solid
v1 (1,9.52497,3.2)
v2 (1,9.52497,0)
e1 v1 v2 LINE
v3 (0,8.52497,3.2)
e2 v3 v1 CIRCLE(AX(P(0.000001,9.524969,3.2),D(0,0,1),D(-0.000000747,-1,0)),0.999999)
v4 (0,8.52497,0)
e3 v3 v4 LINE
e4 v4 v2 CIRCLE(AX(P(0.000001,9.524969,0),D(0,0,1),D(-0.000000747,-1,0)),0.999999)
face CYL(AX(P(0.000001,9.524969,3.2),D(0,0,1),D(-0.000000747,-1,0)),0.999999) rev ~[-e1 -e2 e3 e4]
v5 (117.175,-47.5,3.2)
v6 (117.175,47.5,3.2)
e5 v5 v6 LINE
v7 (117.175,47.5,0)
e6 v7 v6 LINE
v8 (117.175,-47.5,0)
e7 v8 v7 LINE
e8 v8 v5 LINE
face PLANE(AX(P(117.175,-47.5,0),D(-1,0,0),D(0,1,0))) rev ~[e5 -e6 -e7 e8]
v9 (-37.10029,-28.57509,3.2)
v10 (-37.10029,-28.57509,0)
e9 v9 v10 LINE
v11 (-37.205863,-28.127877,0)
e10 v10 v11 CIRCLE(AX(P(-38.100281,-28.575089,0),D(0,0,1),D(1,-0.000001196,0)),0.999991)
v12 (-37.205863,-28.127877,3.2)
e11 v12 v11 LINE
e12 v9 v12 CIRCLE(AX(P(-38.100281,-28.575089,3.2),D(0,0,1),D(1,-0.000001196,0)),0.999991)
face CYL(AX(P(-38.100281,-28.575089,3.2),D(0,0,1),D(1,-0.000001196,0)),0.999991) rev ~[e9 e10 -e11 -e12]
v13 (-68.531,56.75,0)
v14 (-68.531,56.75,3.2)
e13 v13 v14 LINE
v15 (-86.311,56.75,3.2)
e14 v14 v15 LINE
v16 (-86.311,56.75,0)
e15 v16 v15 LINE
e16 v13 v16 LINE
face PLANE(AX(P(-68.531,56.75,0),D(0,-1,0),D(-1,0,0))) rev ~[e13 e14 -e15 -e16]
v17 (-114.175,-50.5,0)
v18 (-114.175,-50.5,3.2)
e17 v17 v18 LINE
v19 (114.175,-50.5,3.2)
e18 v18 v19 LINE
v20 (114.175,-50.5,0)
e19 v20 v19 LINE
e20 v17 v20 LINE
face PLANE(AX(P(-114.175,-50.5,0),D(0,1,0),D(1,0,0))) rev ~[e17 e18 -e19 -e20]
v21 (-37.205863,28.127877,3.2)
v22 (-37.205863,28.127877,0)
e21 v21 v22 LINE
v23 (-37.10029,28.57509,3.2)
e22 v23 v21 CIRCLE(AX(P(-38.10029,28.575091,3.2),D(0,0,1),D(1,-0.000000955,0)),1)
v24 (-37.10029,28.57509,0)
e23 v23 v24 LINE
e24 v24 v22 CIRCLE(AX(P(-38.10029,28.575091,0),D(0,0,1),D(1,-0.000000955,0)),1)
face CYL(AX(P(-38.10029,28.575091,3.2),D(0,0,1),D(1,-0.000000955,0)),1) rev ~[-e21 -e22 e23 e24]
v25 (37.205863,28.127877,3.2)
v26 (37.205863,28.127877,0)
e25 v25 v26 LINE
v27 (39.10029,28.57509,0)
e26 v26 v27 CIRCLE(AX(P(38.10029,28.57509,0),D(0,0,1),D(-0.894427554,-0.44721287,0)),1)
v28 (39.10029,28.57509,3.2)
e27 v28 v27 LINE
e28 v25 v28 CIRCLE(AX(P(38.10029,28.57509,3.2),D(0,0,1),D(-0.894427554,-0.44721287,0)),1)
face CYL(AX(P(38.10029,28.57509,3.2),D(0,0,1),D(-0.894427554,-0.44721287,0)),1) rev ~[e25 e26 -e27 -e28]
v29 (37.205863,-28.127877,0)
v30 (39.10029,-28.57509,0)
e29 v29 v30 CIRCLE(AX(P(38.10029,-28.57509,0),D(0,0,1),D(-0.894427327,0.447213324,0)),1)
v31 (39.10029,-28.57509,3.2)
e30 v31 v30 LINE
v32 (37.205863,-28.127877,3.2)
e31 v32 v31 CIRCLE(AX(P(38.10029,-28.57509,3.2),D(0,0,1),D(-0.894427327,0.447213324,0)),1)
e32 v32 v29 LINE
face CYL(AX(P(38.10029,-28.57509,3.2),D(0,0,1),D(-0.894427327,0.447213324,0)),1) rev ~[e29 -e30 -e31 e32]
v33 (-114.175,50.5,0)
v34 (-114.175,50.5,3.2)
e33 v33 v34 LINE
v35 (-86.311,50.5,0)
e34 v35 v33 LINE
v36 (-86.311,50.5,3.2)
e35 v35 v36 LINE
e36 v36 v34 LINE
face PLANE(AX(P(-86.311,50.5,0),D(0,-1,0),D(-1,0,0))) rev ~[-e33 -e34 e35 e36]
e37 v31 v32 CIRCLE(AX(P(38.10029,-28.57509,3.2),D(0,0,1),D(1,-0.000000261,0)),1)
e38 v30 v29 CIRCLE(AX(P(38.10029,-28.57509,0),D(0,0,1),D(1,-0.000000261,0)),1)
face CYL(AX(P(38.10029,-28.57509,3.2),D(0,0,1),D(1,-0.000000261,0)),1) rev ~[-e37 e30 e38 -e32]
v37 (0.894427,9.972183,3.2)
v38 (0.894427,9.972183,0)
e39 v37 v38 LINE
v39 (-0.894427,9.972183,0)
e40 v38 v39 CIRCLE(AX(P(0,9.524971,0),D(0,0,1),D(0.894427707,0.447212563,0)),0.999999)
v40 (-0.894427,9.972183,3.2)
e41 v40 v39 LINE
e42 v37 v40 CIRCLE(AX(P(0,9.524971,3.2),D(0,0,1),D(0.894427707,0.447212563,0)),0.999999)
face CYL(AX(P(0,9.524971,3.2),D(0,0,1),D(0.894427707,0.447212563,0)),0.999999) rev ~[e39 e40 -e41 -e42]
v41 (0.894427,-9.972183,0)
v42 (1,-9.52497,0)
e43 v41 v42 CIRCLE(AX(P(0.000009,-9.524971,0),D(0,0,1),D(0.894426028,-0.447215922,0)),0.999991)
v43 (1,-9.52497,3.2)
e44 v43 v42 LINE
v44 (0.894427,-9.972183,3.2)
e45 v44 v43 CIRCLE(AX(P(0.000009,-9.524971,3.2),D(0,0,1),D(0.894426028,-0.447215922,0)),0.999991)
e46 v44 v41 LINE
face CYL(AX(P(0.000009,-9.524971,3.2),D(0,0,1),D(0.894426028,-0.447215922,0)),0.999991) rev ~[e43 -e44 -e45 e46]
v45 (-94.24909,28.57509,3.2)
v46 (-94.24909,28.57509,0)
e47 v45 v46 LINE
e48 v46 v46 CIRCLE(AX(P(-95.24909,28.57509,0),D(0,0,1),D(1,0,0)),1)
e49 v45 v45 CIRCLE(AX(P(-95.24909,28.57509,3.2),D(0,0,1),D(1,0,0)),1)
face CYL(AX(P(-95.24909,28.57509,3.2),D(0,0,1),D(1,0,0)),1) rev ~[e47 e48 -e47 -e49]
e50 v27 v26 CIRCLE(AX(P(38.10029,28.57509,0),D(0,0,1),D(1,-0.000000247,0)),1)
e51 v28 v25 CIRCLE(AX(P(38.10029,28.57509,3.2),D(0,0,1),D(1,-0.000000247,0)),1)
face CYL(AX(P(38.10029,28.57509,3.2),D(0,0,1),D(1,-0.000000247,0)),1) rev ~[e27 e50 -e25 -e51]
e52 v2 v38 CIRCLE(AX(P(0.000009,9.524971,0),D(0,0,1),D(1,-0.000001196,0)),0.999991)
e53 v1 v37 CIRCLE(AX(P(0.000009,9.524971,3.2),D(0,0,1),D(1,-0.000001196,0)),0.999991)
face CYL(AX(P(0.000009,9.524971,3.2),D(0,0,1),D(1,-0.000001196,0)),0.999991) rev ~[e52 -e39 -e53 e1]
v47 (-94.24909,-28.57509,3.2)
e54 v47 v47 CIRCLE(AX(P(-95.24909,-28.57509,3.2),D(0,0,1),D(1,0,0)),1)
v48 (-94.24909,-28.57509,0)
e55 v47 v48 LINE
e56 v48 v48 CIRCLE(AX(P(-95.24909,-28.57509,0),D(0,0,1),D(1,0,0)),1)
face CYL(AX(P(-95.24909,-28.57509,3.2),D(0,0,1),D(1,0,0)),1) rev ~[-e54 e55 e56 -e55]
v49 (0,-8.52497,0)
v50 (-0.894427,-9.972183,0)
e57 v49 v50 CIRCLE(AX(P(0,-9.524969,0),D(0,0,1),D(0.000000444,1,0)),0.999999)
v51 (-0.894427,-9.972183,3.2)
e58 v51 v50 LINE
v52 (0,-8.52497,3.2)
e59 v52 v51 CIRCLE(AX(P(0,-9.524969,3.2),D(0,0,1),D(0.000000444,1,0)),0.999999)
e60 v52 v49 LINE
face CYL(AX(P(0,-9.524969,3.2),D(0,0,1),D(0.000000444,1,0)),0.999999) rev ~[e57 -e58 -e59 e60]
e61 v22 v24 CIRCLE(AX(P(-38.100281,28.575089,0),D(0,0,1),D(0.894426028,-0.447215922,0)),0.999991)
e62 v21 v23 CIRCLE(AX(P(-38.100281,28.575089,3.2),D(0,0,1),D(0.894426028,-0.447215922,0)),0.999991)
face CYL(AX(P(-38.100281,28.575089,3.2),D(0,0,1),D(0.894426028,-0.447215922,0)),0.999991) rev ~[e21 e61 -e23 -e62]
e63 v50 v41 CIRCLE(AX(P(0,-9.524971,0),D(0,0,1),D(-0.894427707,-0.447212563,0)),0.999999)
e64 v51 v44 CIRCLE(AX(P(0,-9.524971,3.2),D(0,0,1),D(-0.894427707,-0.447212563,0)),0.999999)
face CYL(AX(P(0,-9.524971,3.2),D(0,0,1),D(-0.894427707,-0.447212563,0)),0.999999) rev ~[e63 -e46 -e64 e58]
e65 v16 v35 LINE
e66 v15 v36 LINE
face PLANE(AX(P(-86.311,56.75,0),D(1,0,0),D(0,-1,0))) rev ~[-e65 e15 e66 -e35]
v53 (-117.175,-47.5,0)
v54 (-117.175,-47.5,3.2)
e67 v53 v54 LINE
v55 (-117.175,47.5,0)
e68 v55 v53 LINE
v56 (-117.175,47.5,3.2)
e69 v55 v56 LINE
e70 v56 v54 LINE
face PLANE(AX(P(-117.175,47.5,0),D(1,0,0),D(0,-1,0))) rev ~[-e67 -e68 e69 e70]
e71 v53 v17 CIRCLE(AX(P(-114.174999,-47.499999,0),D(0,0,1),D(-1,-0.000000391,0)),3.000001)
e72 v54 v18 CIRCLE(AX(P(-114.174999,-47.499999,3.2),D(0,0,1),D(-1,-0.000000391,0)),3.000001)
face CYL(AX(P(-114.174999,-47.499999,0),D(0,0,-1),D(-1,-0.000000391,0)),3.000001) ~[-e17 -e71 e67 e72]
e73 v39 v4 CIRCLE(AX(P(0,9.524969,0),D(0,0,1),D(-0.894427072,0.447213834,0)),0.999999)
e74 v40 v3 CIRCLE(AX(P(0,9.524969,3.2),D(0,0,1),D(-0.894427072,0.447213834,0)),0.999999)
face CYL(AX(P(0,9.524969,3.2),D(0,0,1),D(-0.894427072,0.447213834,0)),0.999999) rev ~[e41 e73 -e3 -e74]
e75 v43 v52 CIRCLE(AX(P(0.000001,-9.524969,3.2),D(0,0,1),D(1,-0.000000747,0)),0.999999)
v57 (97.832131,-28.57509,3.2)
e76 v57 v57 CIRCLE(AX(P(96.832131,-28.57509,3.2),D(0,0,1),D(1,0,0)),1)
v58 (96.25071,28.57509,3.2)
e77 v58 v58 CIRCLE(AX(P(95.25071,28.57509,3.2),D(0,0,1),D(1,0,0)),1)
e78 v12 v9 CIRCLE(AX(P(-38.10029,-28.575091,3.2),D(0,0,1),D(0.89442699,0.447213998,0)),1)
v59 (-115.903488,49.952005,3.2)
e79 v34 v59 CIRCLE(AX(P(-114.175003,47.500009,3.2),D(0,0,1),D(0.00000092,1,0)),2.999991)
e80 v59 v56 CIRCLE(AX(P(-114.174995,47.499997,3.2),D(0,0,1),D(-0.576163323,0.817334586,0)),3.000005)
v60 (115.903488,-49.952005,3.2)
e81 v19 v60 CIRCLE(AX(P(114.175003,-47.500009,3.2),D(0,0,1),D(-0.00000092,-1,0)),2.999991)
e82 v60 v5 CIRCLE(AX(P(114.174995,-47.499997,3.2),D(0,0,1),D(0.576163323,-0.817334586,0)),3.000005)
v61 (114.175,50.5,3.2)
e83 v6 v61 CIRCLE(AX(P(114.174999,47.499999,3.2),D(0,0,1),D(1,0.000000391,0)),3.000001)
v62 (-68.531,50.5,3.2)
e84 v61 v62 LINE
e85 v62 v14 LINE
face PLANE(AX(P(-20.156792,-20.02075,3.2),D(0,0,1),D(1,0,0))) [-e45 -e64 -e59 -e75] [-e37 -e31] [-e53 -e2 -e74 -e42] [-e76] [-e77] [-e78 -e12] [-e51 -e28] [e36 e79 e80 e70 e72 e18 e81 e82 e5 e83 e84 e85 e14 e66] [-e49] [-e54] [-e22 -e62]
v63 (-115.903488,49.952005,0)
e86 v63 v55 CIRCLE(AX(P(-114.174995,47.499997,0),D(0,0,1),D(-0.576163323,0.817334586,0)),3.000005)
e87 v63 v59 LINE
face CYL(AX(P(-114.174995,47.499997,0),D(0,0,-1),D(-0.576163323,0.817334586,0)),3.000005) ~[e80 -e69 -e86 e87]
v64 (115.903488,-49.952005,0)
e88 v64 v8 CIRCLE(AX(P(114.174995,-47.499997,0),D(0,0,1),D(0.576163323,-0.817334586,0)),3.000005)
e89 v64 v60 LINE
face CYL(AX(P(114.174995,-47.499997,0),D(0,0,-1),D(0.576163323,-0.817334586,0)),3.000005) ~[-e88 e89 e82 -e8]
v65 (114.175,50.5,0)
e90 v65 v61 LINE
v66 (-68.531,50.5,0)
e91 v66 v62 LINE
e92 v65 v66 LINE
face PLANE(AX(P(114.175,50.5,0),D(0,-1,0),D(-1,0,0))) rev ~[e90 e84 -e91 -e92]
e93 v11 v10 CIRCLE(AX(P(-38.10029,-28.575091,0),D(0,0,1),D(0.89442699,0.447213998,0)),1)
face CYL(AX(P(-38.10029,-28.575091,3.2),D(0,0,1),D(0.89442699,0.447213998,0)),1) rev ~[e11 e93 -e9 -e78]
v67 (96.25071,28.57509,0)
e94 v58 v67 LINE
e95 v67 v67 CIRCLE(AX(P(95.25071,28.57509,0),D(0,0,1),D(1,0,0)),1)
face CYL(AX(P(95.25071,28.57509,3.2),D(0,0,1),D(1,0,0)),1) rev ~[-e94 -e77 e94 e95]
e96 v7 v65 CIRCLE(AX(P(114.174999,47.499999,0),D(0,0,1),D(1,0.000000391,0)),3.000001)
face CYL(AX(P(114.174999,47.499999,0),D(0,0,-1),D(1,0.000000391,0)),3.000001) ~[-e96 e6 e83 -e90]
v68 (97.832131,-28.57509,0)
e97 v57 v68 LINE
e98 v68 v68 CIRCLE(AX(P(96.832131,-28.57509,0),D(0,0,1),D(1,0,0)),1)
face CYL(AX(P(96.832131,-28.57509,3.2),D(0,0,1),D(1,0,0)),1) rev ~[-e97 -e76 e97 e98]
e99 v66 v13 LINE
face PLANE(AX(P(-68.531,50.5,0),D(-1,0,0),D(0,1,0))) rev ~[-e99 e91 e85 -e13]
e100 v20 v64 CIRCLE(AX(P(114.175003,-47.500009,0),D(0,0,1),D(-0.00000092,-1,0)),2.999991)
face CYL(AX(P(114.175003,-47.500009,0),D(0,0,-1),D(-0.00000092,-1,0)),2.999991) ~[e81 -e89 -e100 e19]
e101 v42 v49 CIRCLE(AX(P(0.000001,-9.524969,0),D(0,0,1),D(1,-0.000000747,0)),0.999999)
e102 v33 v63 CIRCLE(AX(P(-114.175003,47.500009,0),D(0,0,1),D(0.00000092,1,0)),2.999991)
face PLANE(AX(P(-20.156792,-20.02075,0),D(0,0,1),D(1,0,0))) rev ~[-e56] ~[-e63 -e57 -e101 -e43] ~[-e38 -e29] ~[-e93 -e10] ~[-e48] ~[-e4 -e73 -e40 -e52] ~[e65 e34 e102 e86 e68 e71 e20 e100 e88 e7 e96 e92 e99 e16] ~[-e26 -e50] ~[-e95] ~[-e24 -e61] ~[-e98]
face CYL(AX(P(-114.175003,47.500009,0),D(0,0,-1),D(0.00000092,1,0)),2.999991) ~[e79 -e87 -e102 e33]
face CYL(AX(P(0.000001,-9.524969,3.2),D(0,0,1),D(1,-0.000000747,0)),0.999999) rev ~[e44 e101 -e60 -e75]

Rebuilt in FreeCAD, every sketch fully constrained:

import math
import FreeCAD as App
import Part
import Sketcher
from FreeCAD import Vector

doc = App.newDocument("Part")
body = doc.addObject("PartDesign::Body", "Body")

sketch1 = body.newObject("Sketcher::SketchObject", "Sketch")
sketch1.AttachmentSupport = (doc.getObject("XY_Plane"), [""])
sketch1.MapMode = "FlatFace"
sketch1.addGeometry([
    Part.ArcOfCircle(Part.Circle(Vector(-114.174995, 47.499997, 0), Vector(0, 0, 1), 3.000005), math.radians(125.181141), math.radians(179.999951)),
    Part.LineSegment(Vector(-117.175, 47.5, 0), Vector(-117.175, -47.5, 0)),
    Part.ArcOfCircle(Part.Circle(Vector(-114.174999, -47.499999, 0), Vector(0, 0, 1), 3.000001), math.radians(-179.999978), math.radians(-90.000022)),
    Part.LineSegment(Vector(-114.175, -50.5, 0), Vector(114.175, -50.5, 0)),
    Part.ArcOfCircle(Part.Circle(Vector(114.175003, -47.500009, 0), Vector(0, 0, 1), 2.999991), math.radians(-90.000053), math.radians(-54.818843)),
    Part.ArcOfCircle(Part.Circle(Vector(114.174995, -47.499997, 0), Vector(0, 0, 1), 3.000005), math.radians(-54.818859), math.radians(-0.000049)),
    Part.LineSegment(Vector(117.175, -47.5, 0), Vector(117.175, 47.5, 0)),
    Part.ArcOfCircle(Part.Circle(Vector(114.174999, 47.499999, 0), Vector(0, 0, 1), 3.000001), math.radians(0.000022), math.radians(89.999978)),
    Part.LineSegment(Vector(114.175, 50.5, 0), Vector(-68.531, 50.5, 0)),
    Part.LineSegment(Vector(-68.531, 50.5, 0), Vector(-68.531, 56.75, 0)),
    Part.LineSegment(Vector(-68.531, 56.75, 0), Vector(-86.311, 56.75, 0)),
    Part.LineSegment(Vector(-86.311, 56.75, 0), Vector(-86.311, 50.5, 0)),
    Part.LineSegment(Vector(-86.311, 50.5, 0), Vector(-114.175, 50.5, 0)),
    Part.ArcOfCircle(Part.Circle(Vector(-114.175003, 47.500009, 0), Vector(0, 0, 1), 2.999991), math.radians(89.999947), math.radians(125.181157)),
], False)
sketch1.addConstraint([
    Sketcher.Constraint("Tangent", 0, 2, 1, 1),
    Sketcher.Constraint("Tangent", 1, 2, 2, 1),
    Sketcher.Constraint("Tangent", 2, 2, 3, 1),
    Sketcher.Constraint("Tangent", 3, 2, 4, 1),
    Sketcher.Constraint("Tangent", 4, 2, 5, 1),
    Sketcher.Constraint("Tangent", 5, 2, 6, 1),
    Sketcher.Constraint("Tangent", 6, 2, 7, 1),
    Sketcher.Constraint("Tangent", 7, 2, 8, 1),
    Sketcher.Constraint("Coincident", 8, 2, 9, 1),
    Sketcher.Constraint("Coincident", 9, 2, 10, 1),
    Sketcher.Constraint("Coincident", 10, 2, 11, 1),
    Sketcher.Constraint("Coincident", 11, 2, 12, 1),
    Sketcher.Constraint("Tangent", 12, 2, 13, 1),
    Sketcher.Constraint("Tangent", 13, 2, 0, 1),
    Sketcher.Constraint("Vertical", 1),
    Sketcher.Constraint("Horizontal", 3),
    Sketcher.Constraint("Vertical", 6),
    Sketcher.Constraint("Horizontal", 8),
    Sketcher.Constraint("Vertical", 9),
    Sketcher.Constraint("Horizontal", 10),
    Sketcher.Constraint("Vertical", 11),
    Sketcher.Constraint("Horizontal", 12),
    Sketcher.Constraint("Equal", 0, 5),
    Sketcher.Constraint("Equal", 2, 7),
    Sketcher.Constraint("Equal", 4, 13),
    Sketcher.Constraint("Symmetric", 0, 3, 5, 3, -1, 1),
    Sketcher.Constraint("Symmetric", 2, 3, 5, 3, -2),
    Sketcher.Constraint("Horizontal", 0, 3, 7, 3),
    Sketcher.Constraint("Radius", 2, 3.000001),
    Sketcher.Constraint("DistanceY", 1, 2, 1, 1, 95.0),
    Sketcher.Constraint("DistanceX", 3, 1, 3, 2, 228.35),
    Sketcher.Constraint("DistanceX", 10, 2, 10, 1, 17.78),
    Sketcher.Constraint("DistanceY", 9, 1, 9, 2, 6.25),
    Sketcher.Constraint("DistanceX", 8, 2, 8, 1, 182.706),
    Sketcher.Constraint("DistanceX", -1, 1, 4, 2, 115.903488),
    Sketcher.Constraint("DistanceX", 13, 2, -1, 1, 115.903488),
])
pad1 = body.newObject("PartDesign::Pad", "Pad")
pad1.Profile = sketch1
pad1.Length = 3.2

sketch2 = body.newObject("Sketcher::SketchObject", "Sketch001")
sketch2.AttachmentSupport = (doc.getObject("XY_Plane"), [""])
sketch2.MapMode = "FlatFace"
sketch2.AttachmentOffset = App.Placement(Vector(0, 0, 3.2), App.Rotation())
sketch2.addGeometry([
    Part.Circle(Vector(96.832131, -28.57509, 0), Vector(0, 0, 1), 1),
    Part.Circle(Vector(95.25071, 28.57509, 0), Vector(0, 0, 1), 1),
    Part.ArcOfCircle(Part.Circle(Vector(38.10029, -28.57509, 0), Vector(0, 0, 1), 1), math.radians(153.434966), math.radians(360.000014)),
    Part.ArcOfCircle(Part.Circle(Vector(38.10029, -28.57509, 0), Vector(0, 0, 1), 1), math.radians(-0.000015), math.radians(153.434995)),
    Part.ArcOfCircle(Part.Circle(Vector(-38.100281, -28.575089, 0), Vector(0, 0, 1), 0.999991), math.radians(-0.000069), math.radians(26.5652)),
    Part.ArcOfCircle(Part.Circle(Vector(-38.10029, -28.575091, 0), Vector(0, 0, 1), 1), math.radians(26.565077), math.radians(360.000055)),
    Part.ArcOfCircle(Part.Circle(Vector(-38.10029, 28.575091, 0), Vector(0, 0, 1), 1), math.radians(-0.000055), math.radians(333.434923)),
    Part.ArcOfCircle(Part.Circle(Vector(-38.100281, 28.575089, 0), Vector(0, 0, 1), 0.999991), math.radians(-26.5652), math.radians(0.000069)),
    Part.ArcOfCircle(Part.Circle(Vector(38.10029, 28.57509, 0), Vector(0, 0, 1), 1), math.radians(-0.000014), math.radians(206.565034)),
    Part.ArcOfCircle(Part.Circle(Vector(38.10029, 28.57509, 0), Vector(0, 0, 1), 1), math.radians(-153.434995), math.radians(0.000015)),
    Part.ArcOfCircle(Part.Circle(Vector(0, 9.524969, 0), Vector(0, 0, 1), 0.999999), math.radians(153.434934), math.radians(270.000025)),
    Part.ArcOfCircle(Part.Circle(Vector(0.000001, 9.524969, 0), Vector(0, 0, 1), 0.999999), math.radians(-90.000043), math.radians(0.000043)),
    Part.ArcOfCircle(Part.Circle(Vector(0.000009, 9.524971, 0), Vector(0, 0, 1), 0.999991), math.radians(-0.000069), math.radians(26.5652)),
    Part.ArcOfCircle(Part.Circle(Vector(0, 9.524971, 0), Vector(0, 0, 1), 0.999999), math.radians(26.564985), math.radians(153.435015)),
    Part.ArcOfCircle(Part.Circle(Vector(0, -9.524971, 0), Vector(0, 0, 1), 0.999999), math.radians(-153.435015), math.radians(-26.564985)),
    Part.ArcOfCircle(Part.Circle(Vector(0.000009, -9.524971, 0), Vector(0, 0, 1), 0.999991), math.radians(-26.5652), math.radians(0.000069)),
    Part.ArcOfCircle(Part.Circle(Vector(0.000001, -9.524969, 0), Vector(0, 0, 1), 0.999999), math.radians(-0.000043), math.radians(90.000043)),
    Part.ArcOfCircle(Part.Circle(Vector(0, -9.524969, 0), Vector(0, 0, 1), 0.999999), math.radians(89.999975), math.radians(206.565066)),
    Part.Circle(Vector(-95.24909, -28.57509, 0), Vector(0, 0, 1), 1),
    Part.Circle(Vector(-95.24909, 28.57509, 0), Vector(0, 0, 1), 1),
], False)
sketch2.addConstraint([
    Sketcher.Constraint("Tangent", 2, 1, 3, 2),
    Sketcher.Constraint("Coincident", 3, 1, 2, 2),
    Sketcher.Constraint("Coincident", 4, 1, 5, 2),
    Sketcher.Constraint("Coincident", 5, 1, 4, 2),
    Sketcher.Constraint("Coincident", 6, 1, 7, 2),
    Sketcher.Constraint("Coincident", 7, 1, 6, 2),
    Sketcher.Constraint("Tangent", 8, 1, 9, 2),
    Sketcher.Constraint("Coincident", 9, 1, 8, 2),
    Sketcher.Constraint("Tangent", 10, 2, 11, 1),
    Sketcher.Constraint("Tangent", 11, 2, 12, 1),
    Sketcher.Constraint("Coincident", 12, 2, 13, 1),
    Sketcher.Constraint("Tangent", 13, 2, 10, 1),
    Sketcher.Constraint("Coincident", 14, 2, 15, 1),
    Sketcher.Constraint("Tangent", 15, 2, 16, 1),
    Sketcher.Constraint("Tangent", 16, 2, 17, 1),
    Sketcher.Constraint("Tangent", 17, 2, 14, 1),
    Sketcher.Constraint("Coincident", 12, 3, 10, 3),
    Sketcher.Constraint("Coincident", 15, 3, 14, 3),
    Sketcher.Constraint("Equal", 0, 1),
    Sketcher.Constraint("Equal", 1, 2),
    Sketcher.Constraint("Equal", 3, 5),
    Sketcher.Constraint("Equal", 5, 6),
    Sketcher.Constraint("Equal", 4, 7),
    Sketcher.Constraint("Equal", 6, 8),
    Sketcher.Constraint("Equal", 9, 10),
    Sketcher.Constraint("Equal", 7, 12),
    Sketcher.Constraint("Equal", 13, 14),
    Sketcher.Constraint("Equal", 17, 18),
    Sketcher.Constraint("Equal", 18, 19),
    Sketcher.Constraint("Symmetric", 2, 3, 6, 3, -1, 1),
    Sketcher.Constraint("Symmetric", 4, 3, 8, 3, -1, 1),
    Sketcher.Constraint("Symmetric", 10, 3, 14, 3, -1, 1),
    Sketcher.Constraint("Symmetric", 2, 3, 4, 3, -2),
    Sketcher.Constraint("Symmetric", 12, 2, 13, 2, -2),
    Sketcher.Constraint("Symmetric", 18, 3, 19, 3, -1),
    Sketcher.Constraint("PointOnObject", 10, 2, -2),
    Sketcher.Constraint("PointOnObject", 16, 2, -2),
    Sketcher.Constraint("Horizontal", 0, 3, 2, 3),
    Sketcher.Constraint("Horizontal", 1, 3, 6, 3),
    Sketcher.Constraint("Horizontal", 5, 3, 18, 3),
    Sketcher.Constraint("Horizontal", 18, 3, 3, 1),
    Sketcher.Constraint("Horizontal", 3, 1, 4, 1),
    Sketcher.Constraint("Horizontal", 2, 1, 5, 1),
    Sketcher.Constraint("Horizontal", 19, 3, 6, 1),
    Sketcher.Constraint("Horizontal", 6, 1, 8, 1),
    Sketcher.Constraint("Horizontal", 7, 1, 9, 1),
    Sketcher.Constraint("Horizontal", 13, 3, 11, 2),
    Sketcher.Constraint("Horizontal", 17, 3, 15, 2),
    Sketcher.Constraint("Horizontal", 14, 2, 17, 2),
    Sketcher.Constraint("Vertical", 5, 1, 7, 1),
    Sketcher.Constraint("Vertical", 12, 2, 14, 2),
    Sketcher.Constraint("Diameter", 0, 2.0),
    Sketcher.Constraint("DistanceX", 5, 3, 1, 3, 133.351),
    Sketcher.Constraint("DistanceX", 18, 3, 5, 3, 57.1488),
    Sketcher.Constraint("DistanceX", -1, 1, 0, 3, 96.832131),
    Sketcher.Constraint("DistanceY", 0, 3, -1, 1, 28.57509),
    Sketcher.Constraint("DistanceX", -1, 1, 1, 3, 95.25071),
    Sketcher.Constraint("DistanceY", -1, 1, 10, 3, 9.524969),
    Sketcher.Constraint("DistanceY", 4, 3, 5, 1, 0.447212),
    Sketcher.Constraint("DistanceY", 12, 3, 12, 2, 0.447212),
])
pocket1 = body.newObject("PartDesign::Pocket", "Pocket")
pocket1.Profile = sketch2
pocket1.Length = 3.2

doc.recompute()
